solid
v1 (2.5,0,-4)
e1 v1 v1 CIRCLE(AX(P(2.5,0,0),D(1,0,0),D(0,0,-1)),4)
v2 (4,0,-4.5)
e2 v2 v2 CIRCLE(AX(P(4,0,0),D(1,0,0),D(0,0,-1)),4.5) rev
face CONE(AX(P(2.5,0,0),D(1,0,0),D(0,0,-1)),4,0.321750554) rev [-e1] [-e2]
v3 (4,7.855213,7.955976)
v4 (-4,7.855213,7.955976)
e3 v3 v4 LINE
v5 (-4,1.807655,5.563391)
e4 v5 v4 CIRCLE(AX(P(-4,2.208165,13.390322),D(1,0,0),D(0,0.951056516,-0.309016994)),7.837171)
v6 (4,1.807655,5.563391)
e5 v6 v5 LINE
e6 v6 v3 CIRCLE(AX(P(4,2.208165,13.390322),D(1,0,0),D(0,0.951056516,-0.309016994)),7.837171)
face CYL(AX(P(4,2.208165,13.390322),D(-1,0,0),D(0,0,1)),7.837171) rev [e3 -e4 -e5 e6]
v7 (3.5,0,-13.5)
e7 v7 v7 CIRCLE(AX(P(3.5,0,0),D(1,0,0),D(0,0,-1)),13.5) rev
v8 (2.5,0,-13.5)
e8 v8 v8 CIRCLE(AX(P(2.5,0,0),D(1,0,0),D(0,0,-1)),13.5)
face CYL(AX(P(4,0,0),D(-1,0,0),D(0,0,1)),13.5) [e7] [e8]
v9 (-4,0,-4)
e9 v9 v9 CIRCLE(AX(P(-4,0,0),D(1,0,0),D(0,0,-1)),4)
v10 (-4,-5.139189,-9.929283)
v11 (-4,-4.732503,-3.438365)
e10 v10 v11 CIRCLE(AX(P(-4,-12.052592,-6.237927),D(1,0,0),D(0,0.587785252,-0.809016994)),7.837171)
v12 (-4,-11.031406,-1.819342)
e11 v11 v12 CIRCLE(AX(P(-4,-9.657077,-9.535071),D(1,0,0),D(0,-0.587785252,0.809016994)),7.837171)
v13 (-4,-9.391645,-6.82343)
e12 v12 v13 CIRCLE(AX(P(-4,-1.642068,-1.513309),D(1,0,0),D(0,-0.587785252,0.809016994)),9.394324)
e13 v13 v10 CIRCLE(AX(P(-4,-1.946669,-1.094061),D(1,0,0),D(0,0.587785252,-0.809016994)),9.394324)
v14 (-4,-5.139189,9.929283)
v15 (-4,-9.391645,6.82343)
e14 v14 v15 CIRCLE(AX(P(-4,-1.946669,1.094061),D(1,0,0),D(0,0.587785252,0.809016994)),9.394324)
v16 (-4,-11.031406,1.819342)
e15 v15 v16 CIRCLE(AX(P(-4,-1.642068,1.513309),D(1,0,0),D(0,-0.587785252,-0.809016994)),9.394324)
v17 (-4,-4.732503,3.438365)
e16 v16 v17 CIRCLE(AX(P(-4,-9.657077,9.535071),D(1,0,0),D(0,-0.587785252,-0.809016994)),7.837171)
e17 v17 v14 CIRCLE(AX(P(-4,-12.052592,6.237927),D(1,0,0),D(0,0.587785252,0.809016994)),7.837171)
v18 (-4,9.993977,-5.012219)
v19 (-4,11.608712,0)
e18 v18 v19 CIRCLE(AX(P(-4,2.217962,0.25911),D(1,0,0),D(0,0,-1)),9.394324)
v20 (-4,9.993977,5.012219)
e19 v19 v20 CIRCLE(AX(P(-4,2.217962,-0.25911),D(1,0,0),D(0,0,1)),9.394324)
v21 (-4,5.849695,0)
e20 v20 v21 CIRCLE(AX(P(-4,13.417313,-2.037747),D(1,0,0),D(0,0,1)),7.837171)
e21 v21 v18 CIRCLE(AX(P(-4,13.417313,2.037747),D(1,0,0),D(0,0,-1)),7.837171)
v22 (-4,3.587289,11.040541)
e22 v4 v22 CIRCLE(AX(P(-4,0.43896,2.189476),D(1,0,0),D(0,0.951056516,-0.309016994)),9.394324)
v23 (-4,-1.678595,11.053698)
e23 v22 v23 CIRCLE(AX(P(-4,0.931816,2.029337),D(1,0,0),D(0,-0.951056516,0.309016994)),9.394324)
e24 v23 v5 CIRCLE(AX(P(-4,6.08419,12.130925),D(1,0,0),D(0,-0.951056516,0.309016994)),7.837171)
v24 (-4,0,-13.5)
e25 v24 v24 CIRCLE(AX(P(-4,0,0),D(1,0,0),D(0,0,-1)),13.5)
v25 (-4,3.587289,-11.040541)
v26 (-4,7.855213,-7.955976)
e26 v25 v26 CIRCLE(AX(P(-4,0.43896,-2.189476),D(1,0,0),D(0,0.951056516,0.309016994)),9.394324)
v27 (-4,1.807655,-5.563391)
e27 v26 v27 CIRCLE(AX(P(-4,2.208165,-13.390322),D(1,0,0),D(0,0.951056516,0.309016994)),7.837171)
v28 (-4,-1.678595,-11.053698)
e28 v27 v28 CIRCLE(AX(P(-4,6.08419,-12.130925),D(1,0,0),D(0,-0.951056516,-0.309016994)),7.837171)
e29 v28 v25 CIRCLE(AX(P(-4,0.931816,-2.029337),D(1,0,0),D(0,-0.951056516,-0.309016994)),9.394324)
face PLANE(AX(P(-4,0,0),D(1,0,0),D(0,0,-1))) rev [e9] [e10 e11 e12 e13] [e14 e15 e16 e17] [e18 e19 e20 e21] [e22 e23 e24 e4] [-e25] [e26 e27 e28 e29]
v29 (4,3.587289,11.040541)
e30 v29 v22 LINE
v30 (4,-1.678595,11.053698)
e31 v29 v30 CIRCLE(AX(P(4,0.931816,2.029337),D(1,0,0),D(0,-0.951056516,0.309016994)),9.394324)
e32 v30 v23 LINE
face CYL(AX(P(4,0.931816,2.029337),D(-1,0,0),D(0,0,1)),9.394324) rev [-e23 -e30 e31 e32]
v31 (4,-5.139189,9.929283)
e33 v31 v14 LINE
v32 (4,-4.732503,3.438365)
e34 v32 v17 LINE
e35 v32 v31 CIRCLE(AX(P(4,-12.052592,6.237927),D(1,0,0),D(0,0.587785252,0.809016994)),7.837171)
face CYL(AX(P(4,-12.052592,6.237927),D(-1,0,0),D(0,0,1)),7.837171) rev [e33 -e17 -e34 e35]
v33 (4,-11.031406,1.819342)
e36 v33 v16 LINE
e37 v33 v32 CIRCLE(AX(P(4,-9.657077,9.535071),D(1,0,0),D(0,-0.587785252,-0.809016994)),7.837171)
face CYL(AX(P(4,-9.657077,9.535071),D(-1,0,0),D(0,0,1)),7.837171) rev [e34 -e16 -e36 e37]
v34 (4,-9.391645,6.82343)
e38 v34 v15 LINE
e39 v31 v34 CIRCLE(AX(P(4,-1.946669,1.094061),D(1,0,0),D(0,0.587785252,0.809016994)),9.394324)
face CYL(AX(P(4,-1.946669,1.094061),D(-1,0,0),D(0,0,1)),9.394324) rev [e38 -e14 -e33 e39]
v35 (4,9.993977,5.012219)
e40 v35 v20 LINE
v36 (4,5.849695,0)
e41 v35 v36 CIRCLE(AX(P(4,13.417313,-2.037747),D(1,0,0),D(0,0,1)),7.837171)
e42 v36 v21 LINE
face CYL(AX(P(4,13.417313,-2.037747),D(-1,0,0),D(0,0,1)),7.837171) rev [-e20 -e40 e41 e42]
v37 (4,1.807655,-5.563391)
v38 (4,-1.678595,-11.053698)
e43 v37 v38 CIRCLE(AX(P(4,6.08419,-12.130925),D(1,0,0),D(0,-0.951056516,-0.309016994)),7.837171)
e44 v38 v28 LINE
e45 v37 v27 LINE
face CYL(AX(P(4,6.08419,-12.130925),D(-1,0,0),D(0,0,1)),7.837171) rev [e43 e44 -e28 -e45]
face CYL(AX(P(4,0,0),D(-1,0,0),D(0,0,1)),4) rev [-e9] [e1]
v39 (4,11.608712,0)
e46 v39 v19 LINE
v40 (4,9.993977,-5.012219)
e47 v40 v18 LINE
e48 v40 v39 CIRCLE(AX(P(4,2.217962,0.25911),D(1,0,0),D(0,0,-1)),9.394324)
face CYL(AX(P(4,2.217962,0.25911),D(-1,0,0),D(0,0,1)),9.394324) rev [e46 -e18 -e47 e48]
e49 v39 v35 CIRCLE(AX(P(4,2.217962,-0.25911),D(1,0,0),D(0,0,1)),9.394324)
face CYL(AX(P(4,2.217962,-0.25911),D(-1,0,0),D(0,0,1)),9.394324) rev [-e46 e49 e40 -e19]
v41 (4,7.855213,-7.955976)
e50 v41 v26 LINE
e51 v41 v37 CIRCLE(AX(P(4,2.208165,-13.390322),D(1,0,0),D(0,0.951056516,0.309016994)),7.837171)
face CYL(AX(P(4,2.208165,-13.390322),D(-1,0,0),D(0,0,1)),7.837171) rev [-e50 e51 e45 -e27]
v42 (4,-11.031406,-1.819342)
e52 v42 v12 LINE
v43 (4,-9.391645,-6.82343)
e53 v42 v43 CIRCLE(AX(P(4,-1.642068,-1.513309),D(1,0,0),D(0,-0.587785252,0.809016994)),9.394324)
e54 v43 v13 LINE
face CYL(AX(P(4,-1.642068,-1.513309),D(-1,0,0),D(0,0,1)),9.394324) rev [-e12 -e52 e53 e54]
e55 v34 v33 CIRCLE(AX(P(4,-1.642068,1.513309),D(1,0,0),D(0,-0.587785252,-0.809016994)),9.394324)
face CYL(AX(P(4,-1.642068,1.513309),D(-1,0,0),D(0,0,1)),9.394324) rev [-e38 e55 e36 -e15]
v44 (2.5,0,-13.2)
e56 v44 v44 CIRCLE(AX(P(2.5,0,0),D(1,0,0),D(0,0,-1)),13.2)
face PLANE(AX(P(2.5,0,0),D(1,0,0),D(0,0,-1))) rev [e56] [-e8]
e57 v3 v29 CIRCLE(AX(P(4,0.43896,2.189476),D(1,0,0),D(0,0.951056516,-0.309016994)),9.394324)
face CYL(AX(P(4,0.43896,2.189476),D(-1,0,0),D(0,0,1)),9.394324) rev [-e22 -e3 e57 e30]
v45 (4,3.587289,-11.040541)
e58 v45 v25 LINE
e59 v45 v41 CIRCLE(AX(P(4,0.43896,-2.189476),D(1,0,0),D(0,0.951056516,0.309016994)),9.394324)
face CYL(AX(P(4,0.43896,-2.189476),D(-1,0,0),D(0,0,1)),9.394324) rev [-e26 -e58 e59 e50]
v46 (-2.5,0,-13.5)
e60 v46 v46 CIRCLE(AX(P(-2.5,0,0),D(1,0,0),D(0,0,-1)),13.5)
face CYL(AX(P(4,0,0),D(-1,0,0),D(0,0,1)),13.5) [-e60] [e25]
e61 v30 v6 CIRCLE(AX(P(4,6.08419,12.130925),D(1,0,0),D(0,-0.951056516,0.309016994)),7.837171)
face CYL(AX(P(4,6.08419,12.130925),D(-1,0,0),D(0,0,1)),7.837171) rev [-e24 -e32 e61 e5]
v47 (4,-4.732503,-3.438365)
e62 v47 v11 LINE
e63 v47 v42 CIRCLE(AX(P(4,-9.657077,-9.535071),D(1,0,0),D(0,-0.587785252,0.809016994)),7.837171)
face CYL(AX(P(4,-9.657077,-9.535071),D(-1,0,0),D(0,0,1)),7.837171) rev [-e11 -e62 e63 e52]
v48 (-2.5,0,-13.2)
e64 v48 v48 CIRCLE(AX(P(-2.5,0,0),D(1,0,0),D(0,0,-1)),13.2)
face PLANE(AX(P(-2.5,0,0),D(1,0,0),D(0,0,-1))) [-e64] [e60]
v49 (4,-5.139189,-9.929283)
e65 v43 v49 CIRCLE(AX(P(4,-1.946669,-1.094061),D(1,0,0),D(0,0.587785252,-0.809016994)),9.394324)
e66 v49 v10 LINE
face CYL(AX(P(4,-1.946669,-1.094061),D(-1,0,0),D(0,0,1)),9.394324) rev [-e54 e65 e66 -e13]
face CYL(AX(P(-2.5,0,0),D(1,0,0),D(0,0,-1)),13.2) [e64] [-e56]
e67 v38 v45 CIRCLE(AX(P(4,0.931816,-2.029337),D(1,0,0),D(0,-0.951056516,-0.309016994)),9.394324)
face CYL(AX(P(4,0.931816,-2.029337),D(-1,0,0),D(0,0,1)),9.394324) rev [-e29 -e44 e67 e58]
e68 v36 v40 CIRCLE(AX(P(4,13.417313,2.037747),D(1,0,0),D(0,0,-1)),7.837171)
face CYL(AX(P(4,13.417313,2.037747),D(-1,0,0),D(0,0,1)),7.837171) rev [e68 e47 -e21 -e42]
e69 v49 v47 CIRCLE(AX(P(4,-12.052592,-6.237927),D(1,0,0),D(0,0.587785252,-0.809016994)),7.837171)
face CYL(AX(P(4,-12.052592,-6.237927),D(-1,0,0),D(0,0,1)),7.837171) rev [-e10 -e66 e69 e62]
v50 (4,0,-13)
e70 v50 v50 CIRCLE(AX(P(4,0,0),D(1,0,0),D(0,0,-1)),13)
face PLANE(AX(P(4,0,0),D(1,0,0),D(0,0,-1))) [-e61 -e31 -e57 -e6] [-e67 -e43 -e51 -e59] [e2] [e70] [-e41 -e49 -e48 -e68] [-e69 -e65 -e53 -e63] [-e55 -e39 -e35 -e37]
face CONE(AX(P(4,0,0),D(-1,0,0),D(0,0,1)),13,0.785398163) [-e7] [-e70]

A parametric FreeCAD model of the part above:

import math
import FreeCAD as App
import Part
import Sketcher

V = App.Vector
Q = App.Units.Quantity


def edges_at(feature, points):
    """Names of the edges that pass closest to the given points."""
    edges = feature.Shape.Edges
    near = lambda p: min(range(len(edges)), key=lambda i: edges[i].distToShape(Part.Vertex(*p))[0])
    return sorted({f"Edge{near(p) + 1}" for p in points})

doc = App.newDocument("Part")
body = doc.addObject("PartDesign::Body", "Body")

# Sketch on YZ plane
sketch1 = body.newObject("Sketcher::SketchObject", "Sketch")
sketch1.AttachmentSupport = (doc.getObject("YZ_Plane"), [""])
sketch1.MapMode = "FlatFace"
sketch1.addGeometry(Part.Circle(V(0, 0, 0), V(0, 0, 1), 13.5), False)
sketch1.addGeometry(Part.Circle(V(0, 0, 0), V(0, 0, 1), 4), False)
sketch1.addConstraint(Sketcher.Constraint("Coincident", 0, 3, -1, 1))
sketch1.addConstraint(Sketcher.Constraint("Coincident", 1, 3, -1, 1))
sketch1.addConstraint(Sketcher.Constraint("Diameter", 0, Q("27 mm")))
sketch1.addConstraint(Sketcher.Constraint("Diameter", 1, Q("8 mm")))
pad1 = body.newObject("PartDesign::Pad", "Pad")
pad1.Profile = sketch1
pad1.Length = 8
pad1.Midplane = True

# Sketch on YZ plane
sketch2 = body.newObject("Sketcher::SketchObject", "Sketch001")
sketch2.AttachmentSupport = (doc.getObject("YZ_Plane"), [""])
sketch2.MapMode = "FlatFace"
sketch2.addGeometry(Part.ArcOfCircle(Part.Circle(V(13.417313, -2.037747, 0), V(0, 0, 1), 7.837171), math.radians(115.900372), math.radians(164.929315)), False)
sketch2.addGeometry(Part.ArcOfCircle(Part.Circle(V(13.417313, 2.037747, 0), V(0, 0, 1), 7.837171), math.radians(-164.929315), math.radians(-115.900372)), False)
sketch2.addGeometry(Part.ArcOfCircle(Part.Circle(V(2.217962, 0.25911, 0), V(0, 0, 1), 9.394324), math.radians(-34.133185), math.radians(-1.580505)), False)
sketch2.addGeometry(Part.ArcOfCircle(Part.Circle(V(2.217962, -0.25911, 0), V(0, 0, 1), 9.394324), math.radians(1.580505), math.radians(34.133185)), False)
sketch2.addConstraint(Sketcher.Constraint("Coincident", 0, 2, 1, 1))
sketch2.addConstraint(Sketcher.Constraint("Coincident", 1, 2, 2, 1))
sketch2.addConstraint(Sketcher.Constraint("Coincident", 2, 2, 3, 1))
sketch2.addConstraint(Sketcher.Constraint("Coincident", 3, 2, 0, 1))
sketch2.addConstraint(Sketcher.Constraint("Equal", 0, 1))
sketch2.addConstraint(Sketcher.Constraint("Equal", 2, 3))
sketch2.addConstraint(Sketcher.Constraint("Symmetric", 0, 3, 1, 3, -1))
sketch2.addConstraint(Sketcher.Constraint("Symmetric", 2, 3, 3, 3, -1))
sketch2.addConstraint(Sketcher.Constraint("Radius", 0, Q("7.837171 mm")))
sketch2.addConstraint(Sketcher.Constraint("Radius", 2, Q("9.394324 mm")))
sketch2.addConstraint(Sketcher.Constraint("DistanceX", 2, 2, 1, 3, Q("1.808602 mm")))
sketch2.addConstraint(Sketcher.Constraint("DistanceX", -1, 1, 2, 3, Q("2.217962 mm")))
sketch2.addConstraint(Sketcher.Constraint("DistanceY", -1, 1, 2, 3, Q("0.25911 mm")))
sketch2.addConstraint(Sketcher.Constraint("DistanceY", 1, 2, -1, 1, Q("5.012219 mm")))
pocket1 = body.newObject("PartDesign::Pocket", "Pocket")
pocket1.Profile = sketch2
pocket1.Length = 41.012818
pocket1.Midplane = True
doc.recompute()

polarpattern = body.newObject("PartDesign::PolarPattern", "PolarPattern")
polarpattern.Originals = [pocket1]
polarpattern.Axis = (doc.getObject("X_Axis"), [""])
polarpattern.Angle = 360
polarpattern.Occurrences = 5
body.Tip = polarpattern
doc.recompute()

chamfer = body.newObject("PartDesign::Chamfer", "Chamfer")
chamfer.Base = (polarpattern, edges_at(polarpattern, [(4, 0, 13.5)]))
chamfer.Size = 0.5

# Sketch on YZ plane
sketch3 = body.newObject("Sketcher::SketchObject", "Sketch002")
sketch3.AttachmentSupport = (doc.getObject("YZ_Plane"), [""])
sketch3.MapMode = "FlatFace"
sketch3.addGeometry(Part.Circle(V(0, 0, 0), V(0, 0, 1), 14), False)
sketch3.addGeometry(Part.Circle(V(0, 0, 0), V(0, 0, 1), 13), False)
sketch3.addConstraint(Sketcher.Constraint("Coincident", 0, 3, -1, 1))
sketch3.addConstraint(Sketcher.Constraint("Coincident", 1, 3, -1, 1))
sketch3.addConstraint(Sketcher.Constraint("Diameter", 0, Q("27 mm")))
sketch3.addConstraint(Sketcher.Constraint("Diameter", 1, Q("26.4 mm")))
pocket2 = body.newObject("PartDesign::Pocket", "Pocket001")
pocket2.Profile = sketch3
pocket2.Length = 5
pocket2.Midplane = True
doc.recompute()

chamfer2 = body.newObject("PartDesign::Chamfer", "Chamfer001")
chamfer2.Base = (pocket2, edges_at(pocket2, [(4, 0, 4)]))
chamfer2.ChamferType = "Two distances"
chamfer2.Size = 0.5
chamfer2.Size2 = 1.5
chamfer2.FlipDirection = True

doc.recompute()
